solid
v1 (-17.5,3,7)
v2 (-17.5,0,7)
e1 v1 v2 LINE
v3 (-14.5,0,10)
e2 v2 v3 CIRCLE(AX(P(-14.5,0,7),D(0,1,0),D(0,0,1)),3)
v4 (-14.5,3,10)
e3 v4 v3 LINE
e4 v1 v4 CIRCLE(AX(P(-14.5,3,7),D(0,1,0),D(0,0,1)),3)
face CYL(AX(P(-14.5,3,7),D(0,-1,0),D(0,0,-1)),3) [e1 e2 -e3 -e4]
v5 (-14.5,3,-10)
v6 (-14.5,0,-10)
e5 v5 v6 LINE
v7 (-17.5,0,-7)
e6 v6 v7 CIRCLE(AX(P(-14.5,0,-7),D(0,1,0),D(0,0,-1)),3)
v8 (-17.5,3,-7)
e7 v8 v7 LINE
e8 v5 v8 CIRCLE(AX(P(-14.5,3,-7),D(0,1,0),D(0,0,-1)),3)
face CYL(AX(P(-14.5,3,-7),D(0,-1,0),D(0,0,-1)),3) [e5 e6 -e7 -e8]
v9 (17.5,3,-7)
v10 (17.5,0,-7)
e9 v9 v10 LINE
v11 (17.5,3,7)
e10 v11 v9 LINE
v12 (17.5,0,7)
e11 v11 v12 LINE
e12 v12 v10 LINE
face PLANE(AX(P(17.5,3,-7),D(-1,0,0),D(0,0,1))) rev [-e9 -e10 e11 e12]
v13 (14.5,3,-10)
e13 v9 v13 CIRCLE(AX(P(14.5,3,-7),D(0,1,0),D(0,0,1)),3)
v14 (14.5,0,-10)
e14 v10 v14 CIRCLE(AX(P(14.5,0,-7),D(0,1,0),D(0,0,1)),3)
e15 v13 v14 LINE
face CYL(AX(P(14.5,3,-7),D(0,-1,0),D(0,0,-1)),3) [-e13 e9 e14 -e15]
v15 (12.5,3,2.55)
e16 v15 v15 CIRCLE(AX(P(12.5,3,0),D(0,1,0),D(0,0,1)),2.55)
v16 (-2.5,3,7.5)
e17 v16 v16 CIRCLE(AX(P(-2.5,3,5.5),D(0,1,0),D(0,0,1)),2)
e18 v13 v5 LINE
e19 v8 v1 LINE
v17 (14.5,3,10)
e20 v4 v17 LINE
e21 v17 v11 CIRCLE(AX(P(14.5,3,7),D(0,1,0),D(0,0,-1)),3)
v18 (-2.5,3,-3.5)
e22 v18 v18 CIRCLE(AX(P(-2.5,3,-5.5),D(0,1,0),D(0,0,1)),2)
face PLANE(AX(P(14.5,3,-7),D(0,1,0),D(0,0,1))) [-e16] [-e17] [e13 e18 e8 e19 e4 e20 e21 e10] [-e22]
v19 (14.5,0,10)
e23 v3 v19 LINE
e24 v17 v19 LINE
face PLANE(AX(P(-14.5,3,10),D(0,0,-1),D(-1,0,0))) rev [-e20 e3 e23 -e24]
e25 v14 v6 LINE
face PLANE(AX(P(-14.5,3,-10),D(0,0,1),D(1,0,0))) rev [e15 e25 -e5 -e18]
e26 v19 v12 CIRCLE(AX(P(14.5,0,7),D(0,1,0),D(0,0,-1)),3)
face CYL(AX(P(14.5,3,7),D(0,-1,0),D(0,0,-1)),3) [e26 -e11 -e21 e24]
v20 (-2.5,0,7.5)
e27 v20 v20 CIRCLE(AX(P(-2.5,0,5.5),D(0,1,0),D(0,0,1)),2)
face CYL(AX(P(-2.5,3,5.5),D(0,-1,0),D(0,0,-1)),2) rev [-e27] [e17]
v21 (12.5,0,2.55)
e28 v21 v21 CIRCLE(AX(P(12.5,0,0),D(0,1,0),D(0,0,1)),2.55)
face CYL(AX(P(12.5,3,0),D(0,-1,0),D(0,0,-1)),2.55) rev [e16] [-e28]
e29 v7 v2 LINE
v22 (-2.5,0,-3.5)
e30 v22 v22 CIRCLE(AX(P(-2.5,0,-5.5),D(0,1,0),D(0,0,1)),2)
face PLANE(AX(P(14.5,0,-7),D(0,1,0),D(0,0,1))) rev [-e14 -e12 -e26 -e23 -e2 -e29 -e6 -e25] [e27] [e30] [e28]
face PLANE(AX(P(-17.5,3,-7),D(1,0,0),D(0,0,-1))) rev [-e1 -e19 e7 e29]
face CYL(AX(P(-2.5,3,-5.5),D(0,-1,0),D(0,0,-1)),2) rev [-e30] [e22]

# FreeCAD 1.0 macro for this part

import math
import FreeCAD as App
import Part
import Sketcher
Q = App.Units.Quantity

doc = App.newDocument("Part")
body = doc.addObject("PartDesign::Body", "Body")

# Sketch on XZ plane
sketch1 = doc.addObject("Sketcher::SketchObject", "Sketch")
body.addObject(sketch1)
sketch1.AttachmentSupport = (doc.XZ_Plane, [""])
sketch1.MapMode = "FlatFace"
sketch1.addGeometry(Part.LineSegment(App.Vector(14.5, -10, 0), App.Vector(-14.5, -10, 0)), False)
sketch1.addGeometry(Part.ArcOfCircle(Part.Circle(App.Vector(-14.5, -7, 0), App.Vector(0, 0, 1), 3), math.radians(180), math.radians(270)), False)
sketch1.addGeometry(Part.LineSegment(App.Vector(-17.5, -7, 0), App.Vector(-17.5, 7, 0)), False)
sketch1.addGeometry(Part.ArcOfCircle(Part.Circle(App.Vector(-14.5, 7, 0), App.Vector(0, 0, 1), 3), math.radians(90), math.radians(180)), False)
sketch1.addGeometry(Part.LineSegment(App.Vector(-14.5, 10, 0), App.Vector(14.5, 10, 0)), False)
sketch1.addGeometry(Part.ArcOfCircle(Part.Circle(App.Vector(14.5, 7, 0), App.Vector(0, 0, 1), 3), math.radians(0), math.radians(90)), False)
sketch1.addGeometry(Part.LineSegment(App.Vector(17.5, 7, 0), App.Vector(17.5, -7, 0)), False)
sketch1.addGeometry(Part.ArcOfCircle(Part.Circle(App.Vector(14.5, -7, 0), App.Vector(0, 0, 1), 3), math.radians(-90), math.radians(0)), False)
sketch1.addGeometry(Part.Circle(App.Vector(-2.5, 5.5, 0), App.Vector(0, 0, 1), 2), False)
sketch1.addGeometry(Part.Circle(App.Vector(12.5, 0, 0), App.Vector(0, 0, 1), 2.5), False)
sketch1.addGeometry(Part.Circle(App.Vector(-2.5, -5.5, 0), App.Vector(0, 0, 1), 2), False)
sketch1.addConstraint(Sketcher.Constraint("Tangent", 0, 2, 1, 2))
sketch1.addConstraint(Sketcher.Constraint("Tangent", 1, 1, 2, 1))
sketch1.addConstraint(Sketcher.Constraint("Tangent", 2, 2, 3, 2))
sketch1.addConstraint(Sketcher.Constraint("Tangent", 3, 1, 4, 1))
sketch1.addConstraint(Sketcher.Constraint("Tangent", 4, 2, 5, 2))
sketch1.addConstraint(Sketcher.Constraint("Tangent", 5, 1, 6, 1))
sketch1.addConstraint(Sketcher.Constraint("Tangent", 6, 2, 7, 2))
sketch1.addConstraint(Sketcher.Constraint("Tangent", 7, 1, 0, 1))
sketch1.addConstraint(Sketcher.Constraint("Horizontal", 0))
sketch1.addConstraint(Sketcher.Constraint("Vertical", 2))
sketch1.addConstraint(Sketcher.Constraint("Horizontal", 4))
sketch1.addConstraint(Sketcher.Constraint("Vertical", 6))
sketch1.addConstraint(Sketcher.Constraint("Equal", 1, 3))
sketch1.addConstraint(Sketcher.Constraint("Equal", 3, 5))
sketch1.addConstraint(Sketcher.Constraint("Equal", 5, 7))
sketch1.addConstraint(Sketcher.Constraint("Equal", 8, 10))
sketch1.addConstraint(Sketcher.Constraint("Symmetric", 1, 3, 5, 3, -1, 1))
sketch1.addConstraint(Sketcher.Constraint("Symmetric", 8, 3, 10, 3, -1))
sketch1.addConstraint(Sketcher.Constraint("PointOnObject", 9, 3, -1))
sketch1.addConstraint(Sketcher.Constraint("Diameter", 8, Q("4 mm")))
sketch1.addConstraint(Sketcher.Constraint("Radius", 1, Q("3 mm")))
sketch1.addConstraint(Sketcher.Constraint("Diameter", 9, Q("5.1 mm")))
sketch1.addConstraint(Sketcher.Constraint("DistanceX", 0, 2, 0, 1, Q("29 mm")))
sketch1.addConstraint(Sketcher.Constraint("DistanceY", 2, 1, 2, 2, Q("14 mm")))
sketch1.addConstraint(Sketcher.Constraint("DistanceX", 3, 3, 8, 3, Q("12 mm")))
sketch1.addConstraint(Sketcher.Constraint("DistanceX", 9, 3, 5, 3, Q("2 mm")))
sketch1.addConstraint(Sketcher.Constraint("DistanceY", 10, 3, 8, 3, Q("11 mm")))
pad1 = doc.addObject("PartDesign::Pad", "Pad")
body.addObject(pad1)
pad1.Profile = sketch1
pad1.Length = 3
pad1.Reversed = True

doc.recompute()
